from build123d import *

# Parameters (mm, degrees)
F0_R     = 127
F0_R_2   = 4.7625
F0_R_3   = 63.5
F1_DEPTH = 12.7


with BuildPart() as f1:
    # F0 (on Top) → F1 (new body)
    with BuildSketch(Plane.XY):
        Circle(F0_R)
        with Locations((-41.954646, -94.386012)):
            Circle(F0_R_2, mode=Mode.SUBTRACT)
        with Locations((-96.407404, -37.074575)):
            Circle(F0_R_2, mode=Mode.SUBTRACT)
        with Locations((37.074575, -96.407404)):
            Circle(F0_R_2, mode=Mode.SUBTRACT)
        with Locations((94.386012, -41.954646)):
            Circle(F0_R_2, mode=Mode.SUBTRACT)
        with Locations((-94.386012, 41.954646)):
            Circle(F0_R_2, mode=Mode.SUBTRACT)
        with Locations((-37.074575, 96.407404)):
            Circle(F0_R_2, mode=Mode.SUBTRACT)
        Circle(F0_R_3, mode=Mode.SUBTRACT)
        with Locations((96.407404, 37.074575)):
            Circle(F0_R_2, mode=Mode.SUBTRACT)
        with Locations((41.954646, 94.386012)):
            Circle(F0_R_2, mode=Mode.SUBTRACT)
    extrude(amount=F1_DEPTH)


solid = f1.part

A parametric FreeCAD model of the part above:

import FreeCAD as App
import Part
import Sketcher
from FreeCAD import Vector
Q = App.Units.Quantity

doc = App.newDocument("Part")
body = doc.addObject("PartDesign::Body", "Body")

sketch1 = doc.addObject("Sketcher::SketchObject", "Sketch")
body.addObject(sketch1)
sketch1.AttachmentSupport = (doc.XY_Plane, [""])
sketch1.MapMode = "FlatFace"
sketch1.addGeometry([
    Part.Circle(Vector(0, 0, 0), Vector(0, 0, 1), 127),
    Part.Circle(Vector(-41.954646, -94.386012, 0), Vector(0, 0, 1), 4.7625),
    Part.Circle(Vector(-96.407404, -37.074575, 0), Vector(0, 0, 1), 4.7625),
    Part.Circle(Vector(37.074575, -96.407404, 0), Vector(0, 0, 1), 4.7625),
    Part.Circle(Vector(94.386012, -41.954646, 0), Vector(0, 0, 1), 4.7625),
    Part.Circle(Vector(-94.386012, 41.954646, 0), Vector(0, 0, 1), 4.7625),
    Part.Circle(Vector(-37.074575, 96.407404, 0), Vector(0, 0, 1), 4.7625),
    Part.Circle(Vector(0, 0, 0), Vector(0, 0, 1), 63.5),
    Part.Circle(Vector(96.407404, 37.074575, 0), Vector(0, 0, 1), 4.7625),
    Part.Circle(Vector(41.954646, 94.386012, 0), Vector(0, 0, 1), 4.7625),
], False)
sketch1.addConstraint([
    Sketcher.Constraint("Coincident", 0, 3, -1, 1),
    Sketcher.Constraint("Coincident", 7, 3, -1, 1),
    Sketcher.Constraint("Equal", 1, 2),
    Sketcher.Constraint("Equal", 2, 3),
    Sketcher.Constraint("Equal", 3, 4),
    Sketcher.Constraint("Equal", 4, 5),
    Sketcher.Constraint("Equal", 5, 6),
    Sketcher.Constraint("Equal", 6, 8),
    Sketcher.Constraint("Equal", 8, 9),
    Sketcher.Constraint("Symmetric", 4, 3, 5, 3, -1, 1),
    Sketcher.Constraint("Symmetric", 3, 3, 6, 3, -1, 1),
    Sketcher.Constraint("Symmetric", 2, 3, 8, 3, -1, 1),
    Sketcher.Constraint("Symmetric", 1, 3, 9, 3, -1, 1),
    Sketcher.Constraint("Diameter", 0, Q("10 in")),
    Sketcher.Constraint("Diameter", 7, Q("5 in")),
    Sketcher.Constraint("Diameter", 1, Q("0.375 in")),
    Sketcher.Constraint("DistanceY", 1, 3, -1, 1, Q("94.386012 mm")),
    Sketcher.Constraint("DistanceX", -1, 1, 4, 3, Q("94.386012 mm")),
    Sketcher.Constraint("DistanceX", 2, 3, 1, 3, Q("54.452758 mm")),
    Sketcher.Constraint("DistanceX", 1, 3, 3, 3, Q("79.029221 mm")),
    Sketcher.Constraint("DistanceY", 3, 3, 2, 3, Q("59.332829 mm")),
    Sketcher.Constraint("DistanceY", 3, 3, 4, 3, Q("54.452758 mm")),
    Sketcher.Constraint("DistanceY", 2, 3, 5, 3, Q("79.029221 mm")),
    Sketcher.Constraint("DistanceX", 2, 3, 6, 3, Q("59.332829 mm")),
])
pad1 = doc.addObject("PartDesign::Pad", "Pad")
body.addObject(pad1)
pad1.Profile = sketch1
pad1.Length = Q("0.5 in")

doc.recompute()
